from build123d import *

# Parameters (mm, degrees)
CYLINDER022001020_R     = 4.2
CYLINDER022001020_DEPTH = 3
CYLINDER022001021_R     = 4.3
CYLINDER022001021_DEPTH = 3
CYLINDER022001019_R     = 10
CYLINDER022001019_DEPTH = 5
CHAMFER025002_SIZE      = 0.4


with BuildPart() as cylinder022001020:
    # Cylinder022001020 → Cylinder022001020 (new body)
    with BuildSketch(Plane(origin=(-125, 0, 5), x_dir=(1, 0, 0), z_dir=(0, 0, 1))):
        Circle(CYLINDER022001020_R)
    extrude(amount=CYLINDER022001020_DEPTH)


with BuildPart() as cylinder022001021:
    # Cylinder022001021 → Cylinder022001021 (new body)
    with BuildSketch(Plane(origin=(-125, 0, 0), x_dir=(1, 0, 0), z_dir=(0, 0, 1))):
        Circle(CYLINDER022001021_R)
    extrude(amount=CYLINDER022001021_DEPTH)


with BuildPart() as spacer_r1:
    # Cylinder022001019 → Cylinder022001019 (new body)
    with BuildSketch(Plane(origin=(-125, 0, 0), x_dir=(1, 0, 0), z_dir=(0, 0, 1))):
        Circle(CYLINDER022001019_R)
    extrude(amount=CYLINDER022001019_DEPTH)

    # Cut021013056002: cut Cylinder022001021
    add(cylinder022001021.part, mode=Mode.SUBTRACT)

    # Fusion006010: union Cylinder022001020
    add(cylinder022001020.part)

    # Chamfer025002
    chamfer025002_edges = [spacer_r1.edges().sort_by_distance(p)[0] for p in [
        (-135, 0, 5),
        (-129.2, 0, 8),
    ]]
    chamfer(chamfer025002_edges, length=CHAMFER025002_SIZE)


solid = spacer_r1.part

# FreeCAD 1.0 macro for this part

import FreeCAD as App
import Part
import Sketcher


def edges_at(feature, points):
    """Names of the edges that pass closest to the given points."""
    edges = feature.Shape.Edges
    near = lambda p: min(range(len(edges)), key=lambda i: edges[i].distToShape(Part.Vertex(*p))[0])
    return sorted({f"Edge{near(p) + 1}" for p in points})

doc = App.newDocument("Part")
body = doc.addObject("PartDesign::Body", "Body")

sketch1 = body.newObject("Sketcher::SketchObject", "Sketch")
sketch1.AttachmentSupport = (doc.getObject("XY_Plane"), [""])
sketch1.MapMode = "FlatFace"
sketch1.AttachmentOffset = App.Placement(App.Vector(0, 0, 5), App.Rotation())
sketch1.addGeometry(Part.Circle(App.Vector(-125, 0, 0), App.Vector(0, 0, 1), 4.2), False)
sketch1.addConstraint([
    Sketcher.Constraint("PointOnObject", 0, 3, -1),
    Sketcher.Constraint("Diameter", 0, 8.4),
    Sketcher.Constraint("DistanceX", 0, 3, -1, 1, 125.0),
])
pad1 = body.newObject("PartDesign::Pad", "Pad")
pad1.Profile = sketch1
pad1.Length = 3
body2 = doc.addObject("PartDesign::Body", "Body001")

sketch2 = body2.newObject("Sketcher::SketchObject", "Sketch001")
sketch2.AttachmentSupport = (doc.getObject("XY_Plane001"), [""])
sketch2.MapMode = "FlatFace"
sketch2.addGeometry(Part.Circle(App.Vector(-125, 0, 0), App.Vector(0, 0, 1), 4.3), False)
sketch2.addConstraint([
    Sketcher.Constraint("PointOnObject", 0, 3, -1),
    Sketcher.Constraint("Diameter", 0, 8.6),
    Sketcher.Constraint("DistanceX", 0, 3, -1, 1, 125.0),
])
pad2 = body2.newObject("PartDesign::Pad", "Pad001")
pad2.Profile = sketch2
pad2.Length = 3
body3 = doc.addObject("PartDesign::Body", "Body002")

sketch3 = body3.newObject("Sketcher::SketchObject", "Sketch002")
sketch3.AttachmentSupport = (doc.getObject("XY_Plane002"), [""])
sketch3.MapMode = "FlatFace"
sketch3.addGeometry(Part.Circle(App.Vector(-125, 0, 0), App.Vector(0, 0, 1), 10), False)
sketch3.addConstraint([
    Sketcher.Constraint("PointOnObject", 0, 3, -1),
    Sketcher.Constraint("Diameter", 0, 20.0),
    Sketcher.Constraint("DistanceX", 0, 3, -1, 1, 125.0),
])
pad3 = body3.newObject("PartDesign::Pad", "Pad002")
pad3.Profile = sketch3
pad3.Length = 5
doc.recompute()

boolean = body3.newObject("PartDesign::Boolean", "Boolean")
boolean.Type = "Cut"
boolean.addObjects([body2])
doc.recompute()

boolean2 = body3.newObject("PartDesign::Boolean", "Boolean001")
boolean2.Type = "Fuse"
boolean2.addObjects([body])
doc.recompute()

chamfer = body3.newObject("PartDesign::Chamfer", "Chamfer")
chamfer.Base = (boolean2, edges_at(boolean2, [(-135, 0, 5), (-129.2, 0, 8)]))
chamfer.Size = 0.4

doc.recompute()
